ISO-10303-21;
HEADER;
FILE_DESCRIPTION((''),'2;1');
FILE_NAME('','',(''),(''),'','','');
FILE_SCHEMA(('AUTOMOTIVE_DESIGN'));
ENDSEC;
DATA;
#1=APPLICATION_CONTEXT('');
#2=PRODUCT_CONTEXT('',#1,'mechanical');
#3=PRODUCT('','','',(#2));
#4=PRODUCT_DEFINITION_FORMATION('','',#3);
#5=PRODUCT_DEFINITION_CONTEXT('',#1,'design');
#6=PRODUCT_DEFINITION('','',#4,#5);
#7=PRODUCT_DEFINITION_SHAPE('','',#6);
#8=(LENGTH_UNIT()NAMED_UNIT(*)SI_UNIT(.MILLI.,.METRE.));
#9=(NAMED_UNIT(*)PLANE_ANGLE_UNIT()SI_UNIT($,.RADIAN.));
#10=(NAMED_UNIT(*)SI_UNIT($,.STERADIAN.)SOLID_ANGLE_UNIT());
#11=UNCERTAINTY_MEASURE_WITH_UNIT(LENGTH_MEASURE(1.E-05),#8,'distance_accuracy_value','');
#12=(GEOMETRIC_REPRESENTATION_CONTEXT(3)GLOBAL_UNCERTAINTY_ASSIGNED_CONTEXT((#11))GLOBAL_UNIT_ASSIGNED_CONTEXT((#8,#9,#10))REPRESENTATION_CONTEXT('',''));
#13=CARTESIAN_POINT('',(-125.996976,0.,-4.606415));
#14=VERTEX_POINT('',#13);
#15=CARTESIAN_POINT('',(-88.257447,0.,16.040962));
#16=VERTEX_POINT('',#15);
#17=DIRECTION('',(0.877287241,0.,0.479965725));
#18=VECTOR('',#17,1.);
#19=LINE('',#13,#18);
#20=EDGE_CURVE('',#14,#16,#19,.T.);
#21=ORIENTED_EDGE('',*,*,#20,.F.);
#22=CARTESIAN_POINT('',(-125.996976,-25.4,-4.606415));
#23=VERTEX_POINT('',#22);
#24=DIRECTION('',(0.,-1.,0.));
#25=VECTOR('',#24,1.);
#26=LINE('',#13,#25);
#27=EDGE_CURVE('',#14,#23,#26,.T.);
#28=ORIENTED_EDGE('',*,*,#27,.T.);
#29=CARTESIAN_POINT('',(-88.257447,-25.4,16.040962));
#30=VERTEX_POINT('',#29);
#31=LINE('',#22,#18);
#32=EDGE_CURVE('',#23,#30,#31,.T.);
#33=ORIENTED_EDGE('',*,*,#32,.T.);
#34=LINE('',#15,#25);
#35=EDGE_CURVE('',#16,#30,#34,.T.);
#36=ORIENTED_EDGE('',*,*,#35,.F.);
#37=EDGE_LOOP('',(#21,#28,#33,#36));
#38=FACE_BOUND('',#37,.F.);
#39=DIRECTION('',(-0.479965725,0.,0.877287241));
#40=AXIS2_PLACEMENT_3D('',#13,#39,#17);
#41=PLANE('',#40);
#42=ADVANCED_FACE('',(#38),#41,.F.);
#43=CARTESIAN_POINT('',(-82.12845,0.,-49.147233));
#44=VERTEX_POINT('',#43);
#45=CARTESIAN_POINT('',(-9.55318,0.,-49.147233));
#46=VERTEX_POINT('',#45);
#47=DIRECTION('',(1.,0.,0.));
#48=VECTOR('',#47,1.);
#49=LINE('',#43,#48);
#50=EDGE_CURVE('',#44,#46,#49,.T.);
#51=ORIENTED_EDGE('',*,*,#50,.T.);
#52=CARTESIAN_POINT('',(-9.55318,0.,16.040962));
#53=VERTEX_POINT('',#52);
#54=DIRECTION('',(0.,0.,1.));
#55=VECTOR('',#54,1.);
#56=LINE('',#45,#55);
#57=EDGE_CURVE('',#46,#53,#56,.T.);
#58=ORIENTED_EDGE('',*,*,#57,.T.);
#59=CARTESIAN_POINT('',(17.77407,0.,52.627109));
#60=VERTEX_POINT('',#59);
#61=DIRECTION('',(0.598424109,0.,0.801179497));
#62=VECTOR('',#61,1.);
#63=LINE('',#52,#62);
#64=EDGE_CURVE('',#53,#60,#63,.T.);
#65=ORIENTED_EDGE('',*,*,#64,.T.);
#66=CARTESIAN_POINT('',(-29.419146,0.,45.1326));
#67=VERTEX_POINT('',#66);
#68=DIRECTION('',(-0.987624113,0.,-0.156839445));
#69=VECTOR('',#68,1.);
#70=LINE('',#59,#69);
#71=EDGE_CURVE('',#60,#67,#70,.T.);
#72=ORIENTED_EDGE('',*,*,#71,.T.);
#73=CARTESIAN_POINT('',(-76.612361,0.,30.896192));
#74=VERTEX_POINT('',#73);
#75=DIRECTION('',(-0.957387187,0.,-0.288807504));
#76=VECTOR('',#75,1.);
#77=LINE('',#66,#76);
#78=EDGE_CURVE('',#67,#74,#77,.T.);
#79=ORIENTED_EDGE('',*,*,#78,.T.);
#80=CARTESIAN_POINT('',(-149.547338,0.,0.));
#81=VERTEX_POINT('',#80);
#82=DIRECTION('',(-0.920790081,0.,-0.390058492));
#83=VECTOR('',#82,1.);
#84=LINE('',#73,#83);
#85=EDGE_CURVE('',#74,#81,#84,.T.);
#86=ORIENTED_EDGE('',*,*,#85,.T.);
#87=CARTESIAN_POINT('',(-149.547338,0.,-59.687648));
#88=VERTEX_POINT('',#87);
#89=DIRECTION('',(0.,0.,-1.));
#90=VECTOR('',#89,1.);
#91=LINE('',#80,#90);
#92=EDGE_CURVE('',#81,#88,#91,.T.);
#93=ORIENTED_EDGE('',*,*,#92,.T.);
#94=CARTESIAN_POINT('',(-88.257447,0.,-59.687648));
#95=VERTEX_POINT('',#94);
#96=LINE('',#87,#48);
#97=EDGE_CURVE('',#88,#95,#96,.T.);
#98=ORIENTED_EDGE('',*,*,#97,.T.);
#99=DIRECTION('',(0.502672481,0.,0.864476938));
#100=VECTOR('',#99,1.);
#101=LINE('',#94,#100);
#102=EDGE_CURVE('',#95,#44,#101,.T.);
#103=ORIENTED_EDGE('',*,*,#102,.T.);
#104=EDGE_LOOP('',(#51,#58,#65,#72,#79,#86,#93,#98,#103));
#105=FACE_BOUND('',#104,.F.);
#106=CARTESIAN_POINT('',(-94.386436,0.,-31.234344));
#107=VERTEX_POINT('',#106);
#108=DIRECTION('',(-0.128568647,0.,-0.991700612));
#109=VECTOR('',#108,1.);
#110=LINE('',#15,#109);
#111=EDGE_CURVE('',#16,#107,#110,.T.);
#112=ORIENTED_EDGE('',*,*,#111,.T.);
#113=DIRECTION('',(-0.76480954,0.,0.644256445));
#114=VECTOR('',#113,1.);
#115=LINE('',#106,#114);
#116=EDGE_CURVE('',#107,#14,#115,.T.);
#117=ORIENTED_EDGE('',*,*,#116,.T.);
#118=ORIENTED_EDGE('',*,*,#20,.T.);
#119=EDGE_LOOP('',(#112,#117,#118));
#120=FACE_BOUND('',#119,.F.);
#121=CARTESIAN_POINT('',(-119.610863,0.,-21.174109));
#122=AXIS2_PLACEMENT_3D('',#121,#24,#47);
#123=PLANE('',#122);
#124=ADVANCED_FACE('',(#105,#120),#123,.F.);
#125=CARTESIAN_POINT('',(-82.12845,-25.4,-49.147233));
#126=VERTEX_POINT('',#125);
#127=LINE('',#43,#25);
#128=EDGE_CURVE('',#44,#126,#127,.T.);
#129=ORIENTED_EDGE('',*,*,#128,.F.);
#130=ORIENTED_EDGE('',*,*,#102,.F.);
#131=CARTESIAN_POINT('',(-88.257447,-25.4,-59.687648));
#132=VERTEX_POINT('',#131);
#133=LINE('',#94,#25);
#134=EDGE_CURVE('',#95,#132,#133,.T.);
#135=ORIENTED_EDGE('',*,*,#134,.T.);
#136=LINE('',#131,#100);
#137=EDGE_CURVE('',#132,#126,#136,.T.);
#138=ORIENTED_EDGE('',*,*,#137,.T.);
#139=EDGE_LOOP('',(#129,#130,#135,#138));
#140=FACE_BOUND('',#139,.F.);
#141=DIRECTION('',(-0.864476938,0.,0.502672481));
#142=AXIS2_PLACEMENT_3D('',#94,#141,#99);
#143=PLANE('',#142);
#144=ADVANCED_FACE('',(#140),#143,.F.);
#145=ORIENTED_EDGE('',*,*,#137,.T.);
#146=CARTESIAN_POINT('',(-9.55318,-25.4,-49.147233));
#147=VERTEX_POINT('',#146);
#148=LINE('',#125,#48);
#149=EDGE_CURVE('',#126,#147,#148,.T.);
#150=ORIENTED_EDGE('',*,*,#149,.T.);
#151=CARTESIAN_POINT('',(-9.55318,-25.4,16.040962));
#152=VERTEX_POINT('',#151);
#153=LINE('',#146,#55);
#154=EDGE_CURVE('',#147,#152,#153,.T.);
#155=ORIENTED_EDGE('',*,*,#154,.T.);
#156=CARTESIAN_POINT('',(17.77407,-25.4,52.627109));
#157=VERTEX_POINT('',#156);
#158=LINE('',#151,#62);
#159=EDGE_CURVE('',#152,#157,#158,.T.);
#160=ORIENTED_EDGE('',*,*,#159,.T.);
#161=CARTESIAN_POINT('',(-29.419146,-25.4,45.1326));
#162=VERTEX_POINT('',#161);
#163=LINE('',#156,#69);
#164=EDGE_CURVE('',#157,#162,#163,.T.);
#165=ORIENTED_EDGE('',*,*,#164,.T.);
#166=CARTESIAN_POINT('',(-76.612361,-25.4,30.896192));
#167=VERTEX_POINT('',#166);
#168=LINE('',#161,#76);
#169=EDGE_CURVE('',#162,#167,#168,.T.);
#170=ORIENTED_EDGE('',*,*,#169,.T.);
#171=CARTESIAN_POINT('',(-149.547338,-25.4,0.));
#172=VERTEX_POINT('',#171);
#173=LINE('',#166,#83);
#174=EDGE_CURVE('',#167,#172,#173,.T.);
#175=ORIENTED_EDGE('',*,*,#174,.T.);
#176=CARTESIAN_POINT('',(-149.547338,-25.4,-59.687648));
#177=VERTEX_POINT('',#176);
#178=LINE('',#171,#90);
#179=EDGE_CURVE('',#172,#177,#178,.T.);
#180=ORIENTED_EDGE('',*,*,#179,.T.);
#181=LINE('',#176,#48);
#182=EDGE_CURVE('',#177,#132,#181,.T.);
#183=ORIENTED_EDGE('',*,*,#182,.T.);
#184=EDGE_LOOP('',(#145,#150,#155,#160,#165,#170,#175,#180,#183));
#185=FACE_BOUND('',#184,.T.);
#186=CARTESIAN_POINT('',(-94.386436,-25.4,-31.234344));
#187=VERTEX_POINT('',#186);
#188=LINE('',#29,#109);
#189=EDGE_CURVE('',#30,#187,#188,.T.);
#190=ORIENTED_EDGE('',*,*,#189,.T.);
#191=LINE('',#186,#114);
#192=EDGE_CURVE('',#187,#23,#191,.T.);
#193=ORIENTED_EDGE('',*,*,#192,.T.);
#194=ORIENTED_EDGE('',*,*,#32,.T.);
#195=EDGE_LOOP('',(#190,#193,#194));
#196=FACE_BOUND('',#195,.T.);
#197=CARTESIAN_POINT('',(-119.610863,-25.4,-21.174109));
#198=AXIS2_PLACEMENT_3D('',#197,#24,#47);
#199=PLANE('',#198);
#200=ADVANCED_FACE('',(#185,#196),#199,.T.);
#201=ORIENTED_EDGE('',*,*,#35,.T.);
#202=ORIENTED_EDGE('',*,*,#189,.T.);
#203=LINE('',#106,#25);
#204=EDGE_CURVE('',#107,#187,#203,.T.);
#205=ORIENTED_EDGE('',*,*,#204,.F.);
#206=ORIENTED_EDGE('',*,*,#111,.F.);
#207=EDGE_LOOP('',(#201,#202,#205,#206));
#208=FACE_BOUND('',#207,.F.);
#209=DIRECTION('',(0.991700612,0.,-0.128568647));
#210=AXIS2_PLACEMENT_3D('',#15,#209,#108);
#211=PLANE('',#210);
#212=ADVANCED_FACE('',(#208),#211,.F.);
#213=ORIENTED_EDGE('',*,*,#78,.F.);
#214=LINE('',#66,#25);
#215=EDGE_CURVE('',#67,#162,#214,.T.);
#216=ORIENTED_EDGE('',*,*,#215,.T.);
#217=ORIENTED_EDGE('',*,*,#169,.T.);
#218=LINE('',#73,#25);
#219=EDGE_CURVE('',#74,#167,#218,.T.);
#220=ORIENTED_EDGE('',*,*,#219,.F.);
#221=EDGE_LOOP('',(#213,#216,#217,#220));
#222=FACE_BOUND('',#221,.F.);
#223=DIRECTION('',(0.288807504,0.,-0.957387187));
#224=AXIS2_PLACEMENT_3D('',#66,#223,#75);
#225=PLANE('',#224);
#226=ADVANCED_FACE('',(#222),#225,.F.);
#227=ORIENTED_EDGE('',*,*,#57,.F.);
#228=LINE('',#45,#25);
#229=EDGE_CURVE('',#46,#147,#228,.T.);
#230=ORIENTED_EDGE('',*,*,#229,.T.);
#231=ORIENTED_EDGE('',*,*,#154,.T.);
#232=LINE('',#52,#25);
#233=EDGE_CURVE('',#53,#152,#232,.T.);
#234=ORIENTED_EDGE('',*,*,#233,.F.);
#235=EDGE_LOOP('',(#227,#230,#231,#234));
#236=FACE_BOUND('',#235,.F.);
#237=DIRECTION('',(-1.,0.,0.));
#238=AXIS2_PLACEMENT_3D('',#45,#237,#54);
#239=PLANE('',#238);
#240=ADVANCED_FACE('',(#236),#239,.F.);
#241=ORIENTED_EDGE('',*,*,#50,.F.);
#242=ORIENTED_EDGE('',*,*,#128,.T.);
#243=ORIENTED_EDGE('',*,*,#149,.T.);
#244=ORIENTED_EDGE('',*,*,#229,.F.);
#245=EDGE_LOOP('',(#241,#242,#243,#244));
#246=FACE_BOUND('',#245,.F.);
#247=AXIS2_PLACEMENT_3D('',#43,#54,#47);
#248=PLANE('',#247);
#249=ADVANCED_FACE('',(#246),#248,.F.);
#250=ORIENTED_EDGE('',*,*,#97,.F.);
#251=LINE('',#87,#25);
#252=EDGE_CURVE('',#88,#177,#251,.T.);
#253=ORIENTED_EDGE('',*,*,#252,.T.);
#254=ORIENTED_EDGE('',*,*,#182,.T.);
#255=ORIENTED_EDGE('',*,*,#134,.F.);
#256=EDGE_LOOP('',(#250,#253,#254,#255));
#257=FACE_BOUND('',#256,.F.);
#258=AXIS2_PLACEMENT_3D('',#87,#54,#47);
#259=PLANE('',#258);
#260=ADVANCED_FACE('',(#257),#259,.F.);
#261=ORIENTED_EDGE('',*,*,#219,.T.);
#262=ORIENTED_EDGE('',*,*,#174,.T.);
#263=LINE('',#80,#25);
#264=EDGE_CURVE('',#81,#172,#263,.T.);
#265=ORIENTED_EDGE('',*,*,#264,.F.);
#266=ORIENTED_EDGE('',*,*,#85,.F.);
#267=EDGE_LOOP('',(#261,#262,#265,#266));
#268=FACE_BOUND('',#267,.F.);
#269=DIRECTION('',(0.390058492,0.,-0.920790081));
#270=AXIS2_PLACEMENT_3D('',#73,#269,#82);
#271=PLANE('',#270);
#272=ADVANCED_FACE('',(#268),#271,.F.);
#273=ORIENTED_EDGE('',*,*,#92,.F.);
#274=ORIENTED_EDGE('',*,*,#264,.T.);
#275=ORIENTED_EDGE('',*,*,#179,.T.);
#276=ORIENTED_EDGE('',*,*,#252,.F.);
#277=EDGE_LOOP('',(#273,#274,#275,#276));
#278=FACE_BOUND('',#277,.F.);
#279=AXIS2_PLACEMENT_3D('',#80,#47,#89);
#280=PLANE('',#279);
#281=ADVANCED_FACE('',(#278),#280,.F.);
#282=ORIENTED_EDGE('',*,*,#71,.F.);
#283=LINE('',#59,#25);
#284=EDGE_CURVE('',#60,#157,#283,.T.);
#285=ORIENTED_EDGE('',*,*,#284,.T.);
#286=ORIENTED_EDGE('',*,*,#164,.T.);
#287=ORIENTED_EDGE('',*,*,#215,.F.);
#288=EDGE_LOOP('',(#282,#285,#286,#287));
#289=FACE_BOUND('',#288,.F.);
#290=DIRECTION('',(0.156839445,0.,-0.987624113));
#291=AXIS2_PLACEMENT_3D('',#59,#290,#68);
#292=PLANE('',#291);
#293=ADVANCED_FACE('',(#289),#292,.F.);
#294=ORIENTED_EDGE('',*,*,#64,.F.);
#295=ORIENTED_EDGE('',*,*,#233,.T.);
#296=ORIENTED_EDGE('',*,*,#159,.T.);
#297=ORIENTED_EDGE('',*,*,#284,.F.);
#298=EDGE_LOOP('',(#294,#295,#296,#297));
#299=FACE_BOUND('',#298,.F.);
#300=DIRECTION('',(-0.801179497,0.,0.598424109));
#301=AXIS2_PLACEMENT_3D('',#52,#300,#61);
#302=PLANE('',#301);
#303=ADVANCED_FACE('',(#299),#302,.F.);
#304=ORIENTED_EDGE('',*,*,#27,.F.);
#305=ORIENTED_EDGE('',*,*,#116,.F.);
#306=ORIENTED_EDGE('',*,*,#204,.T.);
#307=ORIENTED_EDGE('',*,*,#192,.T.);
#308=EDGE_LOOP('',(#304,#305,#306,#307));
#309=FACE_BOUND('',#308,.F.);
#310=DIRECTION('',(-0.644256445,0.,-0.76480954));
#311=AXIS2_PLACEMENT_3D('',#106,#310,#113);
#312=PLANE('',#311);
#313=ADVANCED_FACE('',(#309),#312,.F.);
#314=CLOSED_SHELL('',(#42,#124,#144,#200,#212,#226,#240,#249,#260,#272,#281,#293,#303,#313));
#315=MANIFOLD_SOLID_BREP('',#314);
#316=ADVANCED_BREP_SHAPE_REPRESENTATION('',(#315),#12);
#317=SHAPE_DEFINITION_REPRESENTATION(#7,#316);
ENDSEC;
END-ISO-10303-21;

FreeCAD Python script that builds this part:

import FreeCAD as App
import Part
import Sketcher
Q = App.Units.Quantity


def add_polygon(sketch, points):
    """Adds a closed chain of lines whose ends are joined by coincident constraints."""
    first, n = sketch.GeometryCount, len(points)
    for a, b in zip(points, points[1:] + points[:1]):
        sketch.addGeometry(Part.LineSegment(App.Vector(*a, 0), App.Vector(*b, 0)), False)
    for i in range(n):
        sketch.addConstraint(Sketcher.Constraint("Coincident", first + i, 2, first + (i + 1) % n, 1))

doc = App.newDocument("Part")
body = doc.addObject("PartDesign::Body", "Body")

# Sketch on XZ plane
sketch1 = body.newObject("Sketcher::SketchObject", "Sketch")
sketch1.AttachmentSupport = (doc.getObject("XZ_Plane"), [""])
sketch1.MapMode = "FlatFace"
add_polygon(sketch1, [(-10, -49), (-10, 16), (18, 53), (-29, 45), (-77, 31), (-150, 0), (-150, -60), (-88, -60), (-82, -49)])  # lines 0-8
add_polygon(sketch1, [(-126, -5), (-88, 16), (-94, -31)])  # lines 9-11
sketch1.addConstraint(Sketcher.Constraint("Vertical", 0))
sketch1.addConstraint(Sketcher.Constraint("Vertical", 5))
sketch1.addConstraint(Sketcher.Constraint("Horizontal", 6))
sketch1.addConstraint(Sketcher.Constraint("Horizontal", 8))
sketch1.addConstraint(Sketcher.Constraint("PointOnObject", 4, 2, -1))
sketch1.addConstraint(Sketcher.Constraint("Horizontal", 0, 2, 9, 2))
sketch1.addConstraint(Sketcher.Constraint("Vertical", 6, 2, 9, 2))
sketch1.addConstraint(Sketcher.Constraint("DistanceX", 6, 1, 6, 2, 61.289891))
sketch1.addConstraint(Sketcher.Constraint("DistanceX", 8, 1, 8, 2, 72.57527))
sketch1.addConstraint(Sketcher.Constraint("DistanceY", 5, 2, 5, 1, 59.687648))
sketch1.addConstraint(Sketcher.Constraint("DistanceY", -1, 1, 2, 2, 45.1326))
sketch1.addConstraint(Sketcher.Constraint("DistanceX", 6, 2, 2, 2, 58.838301))
sketch1.addConstraint(Sketcher.Constraint("DistanceX", 5, 2, 10, 2, 55.160902))
sketch1.addConstraint(Sketcher.Constraint("Distance", 3, 49.293761))
sketch1.addConstraint(Sketcher.Constraint("Distance", 9, 43.018441))
sketch1.addConstraint(Sketcher.Constraint("DistanceY", 0, 1, 0, 2, 65.188195))
sketch1.addConstraint(Sketcher.Constraint("DistanceX", 0, 2, -1, 1, 9.55318))
sketch1.addConstraint(Sketcher.Constraint("DistanceX", -1, 1, 1, 2, 17.77407))
sketch1.addConstraint(Sketcher.Constraint("DistanceY", -1, 1, 1, 2, 52.627109))
sketch1.addConstraint(Sketcher.Constraint("DistanceX", 3, 2, -1, 1, 76.612361))
sketch1.addConstraint(Sketcher.Constraint("DistanceY", -1, 1, 3, 2, 30.896192))
sketch1.addConstraint(Sketcher.Constraint("DistanceY", 0, 2, 3, 2, 14.85523))
sketch1.addConstraint(Sketcher.Constraint("DistanceY", 7, 2, 10, 2, 17.912889))
sketch1.addConstraint(Sketcher.Constraint("DistanceX", 4, 2, 11, 2, 23.550362))
pad1 = body.newObject("PartDesign::Pad", "Pad")
pad1.Profile = sketch1
pad1.Length = Q("1 in")

doc.recompute()
